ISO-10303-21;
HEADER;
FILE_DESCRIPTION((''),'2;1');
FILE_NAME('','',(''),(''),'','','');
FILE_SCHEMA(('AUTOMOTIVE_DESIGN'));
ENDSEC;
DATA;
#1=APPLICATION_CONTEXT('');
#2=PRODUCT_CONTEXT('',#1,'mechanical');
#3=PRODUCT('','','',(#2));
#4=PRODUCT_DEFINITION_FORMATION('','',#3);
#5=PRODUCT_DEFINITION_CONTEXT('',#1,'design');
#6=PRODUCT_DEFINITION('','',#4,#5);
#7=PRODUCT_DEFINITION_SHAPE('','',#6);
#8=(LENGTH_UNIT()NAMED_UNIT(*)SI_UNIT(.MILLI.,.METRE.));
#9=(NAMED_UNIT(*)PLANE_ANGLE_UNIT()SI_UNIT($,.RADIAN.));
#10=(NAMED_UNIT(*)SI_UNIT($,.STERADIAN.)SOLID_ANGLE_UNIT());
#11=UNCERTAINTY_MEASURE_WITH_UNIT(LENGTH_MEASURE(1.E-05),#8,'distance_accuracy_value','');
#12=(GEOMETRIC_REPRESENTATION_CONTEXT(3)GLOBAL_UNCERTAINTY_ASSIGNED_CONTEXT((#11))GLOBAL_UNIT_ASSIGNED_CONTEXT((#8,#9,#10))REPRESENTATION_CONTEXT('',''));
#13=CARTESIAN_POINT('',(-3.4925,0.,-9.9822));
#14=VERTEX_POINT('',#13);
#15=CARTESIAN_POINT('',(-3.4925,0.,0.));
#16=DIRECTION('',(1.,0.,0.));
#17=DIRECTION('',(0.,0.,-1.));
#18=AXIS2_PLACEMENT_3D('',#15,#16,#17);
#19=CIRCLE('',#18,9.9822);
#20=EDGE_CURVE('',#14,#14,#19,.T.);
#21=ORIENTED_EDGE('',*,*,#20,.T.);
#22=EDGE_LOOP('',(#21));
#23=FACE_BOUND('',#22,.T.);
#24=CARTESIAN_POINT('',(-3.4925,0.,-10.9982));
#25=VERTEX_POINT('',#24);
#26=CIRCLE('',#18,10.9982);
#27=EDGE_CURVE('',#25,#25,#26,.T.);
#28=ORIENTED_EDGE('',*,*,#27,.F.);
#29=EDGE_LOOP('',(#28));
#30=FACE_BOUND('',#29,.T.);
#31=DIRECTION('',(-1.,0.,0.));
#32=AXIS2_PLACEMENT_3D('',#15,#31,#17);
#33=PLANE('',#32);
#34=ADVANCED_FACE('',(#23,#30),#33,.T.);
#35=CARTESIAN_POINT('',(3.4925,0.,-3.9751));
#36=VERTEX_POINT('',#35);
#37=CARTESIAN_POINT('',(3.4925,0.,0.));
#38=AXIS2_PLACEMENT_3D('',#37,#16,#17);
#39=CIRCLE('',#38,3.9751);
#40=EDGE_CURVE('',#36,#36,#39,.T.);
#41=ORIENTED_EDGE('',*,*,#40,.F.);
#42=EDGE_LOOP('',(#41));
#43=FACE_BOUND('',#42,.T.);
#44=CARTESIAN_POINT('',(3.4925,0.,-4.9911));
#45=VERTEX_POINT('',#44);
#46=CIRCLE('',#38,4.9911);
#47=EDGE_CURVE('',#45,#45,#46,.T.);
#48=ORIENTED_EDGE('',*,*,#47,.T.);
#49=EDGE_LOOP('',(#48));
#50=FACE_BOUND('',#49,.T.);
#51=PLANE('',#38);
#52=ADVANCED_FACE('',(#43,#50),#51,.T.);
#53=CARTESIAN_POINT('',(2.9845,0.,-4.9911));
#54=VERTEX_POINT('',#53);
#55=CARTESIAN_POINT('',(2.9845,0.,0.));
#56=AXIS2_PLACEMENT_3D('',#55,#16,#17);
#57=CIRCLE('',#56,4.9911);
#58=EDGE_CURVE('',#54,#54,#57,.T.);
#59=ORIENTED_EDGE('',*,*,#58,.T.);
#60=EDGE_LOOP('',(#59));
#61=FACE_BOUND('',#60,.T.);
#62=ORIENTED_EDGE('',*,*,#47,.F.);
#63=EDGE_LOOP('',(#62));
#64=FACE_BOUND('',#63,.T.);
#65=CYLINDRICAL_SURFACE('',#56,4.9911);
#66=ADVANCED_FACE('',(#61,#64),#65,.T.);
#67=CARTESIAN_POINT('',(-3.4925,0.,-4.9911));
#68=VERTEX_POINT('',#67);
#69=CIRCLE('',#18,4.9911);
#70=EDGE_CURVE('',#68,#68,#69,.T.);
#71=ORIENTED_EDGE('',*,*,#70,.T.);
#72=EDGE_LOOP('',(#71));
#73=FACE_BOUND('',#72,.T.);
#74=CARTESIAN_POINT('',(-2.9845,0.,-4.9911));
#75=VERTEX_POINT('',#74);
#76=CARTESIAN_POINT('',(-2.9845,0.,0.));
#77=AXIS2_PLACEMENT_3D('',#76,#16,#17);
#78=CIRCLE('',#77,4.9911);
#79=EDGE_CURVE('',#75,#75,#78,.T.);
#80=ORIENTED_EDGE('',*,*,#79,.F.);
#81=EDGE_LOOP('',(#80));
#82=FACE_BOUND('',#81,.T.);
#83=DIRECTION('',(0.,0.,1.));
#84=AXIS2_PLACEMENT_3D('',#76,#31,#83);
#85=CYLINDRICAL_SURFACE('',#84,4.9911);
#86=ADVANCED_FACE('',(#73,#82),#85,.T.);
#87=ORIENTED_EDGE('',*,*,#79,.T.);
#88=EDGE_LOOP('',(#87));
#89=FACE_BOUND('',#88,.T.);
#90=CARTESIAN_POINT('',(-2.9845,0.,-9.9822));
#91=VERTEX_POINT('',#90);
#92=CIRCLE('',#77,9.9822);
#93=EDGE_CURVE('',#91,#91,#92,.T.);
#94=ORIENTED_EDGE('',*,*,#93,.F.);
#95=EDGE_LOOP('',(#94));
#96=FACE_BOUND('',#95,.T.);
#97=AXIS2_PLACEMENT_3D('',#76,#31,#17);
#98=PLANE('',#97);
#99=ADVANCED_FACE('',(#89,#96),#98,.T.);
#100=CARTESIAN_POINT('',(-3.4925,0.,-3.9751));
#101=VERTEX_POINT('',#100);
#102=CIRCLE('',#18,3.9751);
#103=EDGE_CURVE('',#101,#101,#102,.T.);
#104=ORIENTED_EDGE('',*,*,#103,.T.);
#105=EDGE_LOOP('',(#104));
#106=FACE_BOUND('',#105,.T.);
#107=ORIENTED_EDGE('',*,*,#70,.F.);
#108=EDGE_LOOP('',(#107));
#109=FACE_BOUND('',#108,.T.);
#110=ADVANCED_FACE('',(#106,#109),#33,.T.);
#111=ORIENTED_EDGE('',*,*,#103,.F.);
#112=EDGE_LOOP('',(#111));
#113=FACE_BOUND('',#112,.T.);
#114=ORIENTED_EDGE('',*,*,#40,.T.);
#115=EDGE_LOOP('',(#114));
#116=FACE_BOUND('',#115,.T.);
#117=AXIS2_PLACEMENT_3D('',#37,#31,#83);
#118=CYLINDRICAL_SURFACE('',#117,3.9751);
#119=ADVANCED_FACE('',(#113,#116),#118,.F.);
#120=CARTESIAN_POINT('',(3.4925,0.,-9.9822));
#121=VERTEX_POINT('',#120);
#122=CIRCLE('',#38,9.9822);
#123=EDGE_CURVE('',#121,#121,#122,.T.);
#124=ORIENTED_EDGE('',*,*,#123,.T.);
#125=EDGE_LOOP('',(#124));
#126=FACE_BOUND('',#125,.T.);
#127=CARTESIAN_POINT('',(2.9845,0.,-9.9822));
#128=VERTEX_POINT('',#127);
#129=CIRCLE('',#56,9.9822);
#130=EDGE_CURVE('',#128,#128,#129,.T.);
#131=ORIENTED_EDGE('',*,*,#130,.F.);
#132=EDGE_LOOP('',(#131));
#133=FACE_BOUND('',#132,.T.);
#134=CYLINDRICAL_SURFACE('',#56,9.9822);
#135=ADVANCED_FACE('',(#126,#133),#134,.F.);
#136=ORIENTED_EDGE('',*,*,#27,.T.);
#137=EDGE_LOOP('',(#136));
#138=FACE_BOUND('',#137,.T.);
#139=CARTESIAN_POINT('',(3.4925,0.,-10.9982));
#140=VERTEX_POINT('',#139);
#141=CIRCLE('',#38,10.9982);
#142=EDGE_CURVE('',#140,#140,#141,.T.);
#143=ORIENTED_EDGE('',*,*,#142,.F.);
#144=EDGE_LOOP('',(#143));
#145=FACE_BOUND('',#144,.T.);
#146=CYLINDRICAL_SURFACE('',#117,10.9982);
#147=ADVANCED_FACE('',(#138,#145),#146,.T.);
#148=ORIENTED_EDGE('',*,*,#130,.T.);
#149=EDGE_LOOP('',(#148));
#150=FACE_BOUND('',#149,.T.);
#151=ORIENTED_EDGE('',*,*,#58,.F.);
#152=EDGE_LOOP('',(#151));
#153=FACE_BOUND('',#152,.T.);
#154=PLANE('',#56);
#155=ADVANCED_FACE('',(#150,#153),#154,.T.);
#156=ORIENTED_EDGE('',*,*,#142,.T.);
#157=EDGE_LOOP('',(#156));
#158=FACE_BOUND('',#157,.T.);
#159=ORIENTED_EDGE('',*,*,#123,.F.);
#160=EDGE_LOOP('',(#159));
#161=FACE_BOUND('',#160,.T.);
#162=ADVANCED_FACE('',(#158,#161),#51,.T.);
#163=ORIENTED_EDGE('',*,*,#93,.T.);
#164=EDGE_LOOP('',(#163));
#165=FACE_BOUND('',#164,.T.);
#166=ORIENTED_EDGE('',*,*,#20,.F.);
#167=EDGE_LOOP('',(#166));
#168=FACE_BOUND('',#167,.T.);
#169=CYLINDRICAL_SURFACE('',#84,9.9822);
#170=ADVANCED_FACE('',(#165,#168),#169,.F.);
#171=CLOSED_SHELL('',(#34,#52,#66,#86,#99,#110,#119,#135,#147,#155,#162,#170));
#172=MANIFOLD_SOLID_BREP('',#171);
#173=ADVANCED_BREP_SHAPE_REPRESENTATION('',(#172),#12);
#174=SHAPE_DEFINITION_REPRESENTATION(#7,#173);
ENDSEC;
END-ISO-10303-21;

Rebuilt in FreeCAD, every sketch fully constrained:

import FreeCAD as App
import Part
import Sketcher
Q = App.Units.Quantity

doc = App.newDocument("Part")
body = doc.addObject("PartDesign::Body", "Body")

# Sketch on YZ plane
sketch1 = body.newObject("Sketcher::SketchObject", "Sketch")
sketch1.AttachmentSupport = (doc.getObject("YZ_Plane"), [""])
sketch1.MapMode = "FlatFace"
sketch1.addGeometry([
    Part.Circle(App.Vector(0, 0, 0), App.Vector(0, 0, 1), 10.9982),
    Part.Circle(App.Vector(0, 0, 0), App.Vector(0, 0, 1), 3.9751),
], False)
sketch1.addConstraint([
    Sketcher.Constraint("Coincident", 0, 3, -1, 1),
    Sketcher.Constraint("Coincident", 1, 3, -1, 1),
    Sketcher.Constraint("Diameter", 0, Q("0.866 in")),
    Sketcher.Constraint("Diameter", 1, Q("0.313 in")),
])
pad1 = body.newObject("PartDesign::Pad", "Pad")
pad1.Profile = sketch1
pad1.Length = Q("0.1375 in")

# Sketch on YZ plane
sketch2 = body.newObject("Sketcher::SketchObject", "Sketch001")
sketch2.AttachmentSupport = (doc.getObject("YZ_Plane"), [""])
sketch2.MapMode = "FlatFace"
sketch2.AttachmentOffset = App.Placement(App.Vector(0, 0, 0.1375 * 25.4), App.Rotation())
sketch2.addGeometry([
    Part.Circle(App.Vector(0, 0, 0), App.Vector(0, 0, 1), 9.9822),
    Part.Circle(App.Vector(0, 0, 0), App.Vector(0, 0, 1), 4.9911),
], False)
sketch2.addConstraint([
    Sketcher.Constraint("Coincident", 0, 3, -1, 1),
    Sketcher.Constraint("Coincident", 1, 3, -1, 1),
    Sketcher.Constraint("Diameter", 0, Q("0.786 in")),
    Sketcher.Constraint("Diameter", 1, Q("0.393 in")),
])
pocket1 = body.newObject("PartDesign::Pocket", "Pocket")
pocket1.Profile = sketch2
pocket1.Length = Q("0.02 in")
doc.recompute()

mirrored = body.newObject("PartDesign::Mirrored", "Mirrored")
mirrored.Originals = [pad1, pocket1]
mirrored.MirrorPlane = (doc.getObject("YZ_Plane"), [""])
body.Tip = mirrored

doc.recompute()
